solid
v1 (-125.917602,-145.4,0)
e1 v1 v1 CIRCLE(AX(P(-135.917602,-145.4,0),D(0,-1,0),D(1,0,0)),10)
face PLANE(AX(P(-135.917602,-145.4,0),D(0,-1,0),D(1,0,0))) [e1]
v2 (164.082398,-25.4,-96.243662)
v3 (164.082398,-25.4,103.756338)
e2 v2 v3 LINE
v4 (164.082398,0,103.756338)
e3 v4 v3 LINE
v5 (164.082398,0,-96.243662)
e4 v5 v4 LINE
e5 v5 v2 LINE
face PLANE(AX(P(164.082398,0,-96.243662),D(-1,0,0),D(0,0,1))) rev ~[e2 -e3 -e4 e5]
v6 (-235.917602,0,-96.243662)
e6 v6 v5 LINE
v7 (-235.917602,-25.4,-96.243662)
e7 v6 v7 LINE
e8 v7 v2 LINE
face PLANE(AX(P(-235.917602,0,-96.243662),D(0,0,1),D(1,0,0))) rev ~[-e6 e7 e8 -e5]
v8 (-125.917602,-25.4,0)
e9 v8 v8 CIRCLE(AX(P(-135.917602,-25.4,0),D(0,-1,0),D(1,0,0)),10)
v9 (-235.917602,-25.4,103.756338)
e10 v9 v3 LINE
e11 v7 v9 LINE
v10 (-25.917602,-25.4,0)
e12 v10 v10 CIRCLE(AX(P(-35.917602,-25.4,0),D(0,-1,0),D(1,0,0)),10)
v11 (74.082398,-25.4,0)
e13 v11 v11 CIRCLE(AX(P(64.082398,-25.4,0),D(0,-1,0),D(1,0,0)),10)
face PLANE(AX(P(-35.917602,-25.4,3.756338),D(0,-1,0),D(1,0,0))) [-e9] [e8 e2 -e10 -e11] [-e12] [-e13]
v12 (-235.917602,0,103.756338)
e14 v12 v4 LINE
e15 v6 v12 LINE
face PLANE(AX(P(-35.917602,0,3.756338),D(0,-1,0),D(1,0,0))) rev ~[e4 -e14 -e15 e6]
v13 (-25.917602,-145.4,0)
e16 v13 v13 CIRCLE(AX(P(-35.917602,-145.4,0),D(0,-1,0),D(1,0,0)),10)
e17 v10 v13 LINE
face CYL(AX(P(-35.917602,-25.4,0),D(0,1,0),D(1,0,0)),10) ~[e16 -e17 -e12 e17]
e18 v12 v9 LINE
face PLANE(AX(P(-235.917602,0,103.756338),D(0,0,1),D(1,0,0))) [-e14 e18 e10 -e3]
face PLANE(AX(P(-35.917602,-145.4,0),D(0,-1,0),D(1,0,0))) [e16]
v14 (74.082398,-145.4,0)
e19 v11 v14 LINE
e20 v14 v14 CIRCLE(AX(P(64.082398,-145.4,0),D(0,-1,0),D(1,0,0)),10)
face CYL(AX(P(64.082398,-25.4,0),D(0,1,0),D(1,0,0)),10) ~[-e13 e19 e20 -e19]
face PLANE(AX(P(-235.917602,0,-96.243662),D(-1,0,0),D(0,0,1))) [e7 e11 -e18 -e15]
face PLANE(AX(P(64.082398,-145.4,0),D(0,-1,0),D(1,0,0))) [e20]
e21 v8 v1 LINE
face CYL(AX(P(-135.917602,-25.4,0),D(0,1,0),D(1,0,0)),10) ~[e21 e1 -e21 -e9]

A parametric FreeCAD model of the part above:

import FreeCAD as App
import Part
import Sketcher

V = App.Vector
Q = App.Units.Quantity

doc = App.newDocument("Part")
body = doc.addObject("PartDesign::Body", "Body")

sketch1 = body.newObject("Sketcher::SketchObject", "Sketch")
sketch1.AttachmentSupport = (doc.getObject("XZ_Plane"), [""])
sketch1.MapMode = "FlatFace"
sketch1.addGeometry([
    Part.LineSegment(V(-236, 104, 0), V(-236, -96, 0)),
    Part.LineSegment(V(-236, -96, 0), V(164, -96, 0)),
    Part.LineSegment(V(164, -96, 0), V(164, 104, 0)),
    Part.LineSegment(V(164, 104, 0), V(-236, 104, 0)),
], False)
sketch1.addConstraint([
    Sketcher.Constraint("Coincident", 0, 2, 1, 1),
    Sketcher.Constraint("Coincident", 1, 2, 2, 1),
    Sketcher.Constraint("Coincident", 2, 2, 3, 1),
    Sketcher.Constraint("Coincident", 3, 2, 0, 1),
    Sketcher.Constraint("Vertical", 0),
    Sketcher.Constraint("Horizontal", 1),
    Sketcher.Constraint("Vertical", 2),
    Sketcher.Constraint("Horizontal", 3),
    Sketcher.Constraint("DistanceX", 1, 1, 1, 2, Q("400 mm")),
    Sketcher.Constraint("DistanceY", 0, 2, 0, 1, Q("200 mm")),
    Sketcher.Constraint("DistanceX", 0, 2, -1, 1, Q("235.917602 mm")),
    Sketcher.Constraint("DistanceY", 0, 2, -1, 1, Q("96.243662 mm")),
])
pad1 = body.newObject("PartDesign::Pad", "Pad")
pad1.Profile = sketch1
pad1.Length = 25.4

sketch2 = body.newObject("Sketcher::SketchObject", "Sketch001")
sketch2.AttachmentSupport = (doc.getObject("XZ_Plane"), [""])
sketch2.MapMode = "FlatFace"
sketch2.AttachmentOffset = App.Placement(V(0, 0, 25.4), App.Rotation())
sketch2.addGeometry([
    Part.Circle(V(-136, 0, 0), V(0, 0, 1), 10),
    Part.Circle(V(-36, 0, 0), V(0, 0, 1), 10),
    Part.Circle(V(64, 0, 0), V(0, 0, 1), 10),
], False)
sketch2.addConstraint([
    Sketcher.Constraint("Equal", 0, 1),
    Sketcher.Constraint("Equal", 1, 2),
    Sketcher.Constraint("PointOnObject", 0, 3, -1),
    Sketcher.Constraint("PointOnObject", 1, 3, -1),
    Sketcher.Constraint("PointOnObject", 2, 3, -1),
    Sketcher.Constraint("Diameter", 0, Q("20 mm")),
    Sketcher.Constraint("DistanceX", 0, 3, 1, 3, Q("100 mm")),
    Sketcher.Constraint("DistanceX", 1, 3, 2, 3, Q("100 mm")),
    Sketcher.Constraint("DistanceX", 0, 3, -1, 1, Q("135.917602 mm")),
])
pad2 = body.newObject("PartDesign::Pad", "Pad001")
pad2.Profile = sketch2
pad2.Length = 120

doc.recompute()
